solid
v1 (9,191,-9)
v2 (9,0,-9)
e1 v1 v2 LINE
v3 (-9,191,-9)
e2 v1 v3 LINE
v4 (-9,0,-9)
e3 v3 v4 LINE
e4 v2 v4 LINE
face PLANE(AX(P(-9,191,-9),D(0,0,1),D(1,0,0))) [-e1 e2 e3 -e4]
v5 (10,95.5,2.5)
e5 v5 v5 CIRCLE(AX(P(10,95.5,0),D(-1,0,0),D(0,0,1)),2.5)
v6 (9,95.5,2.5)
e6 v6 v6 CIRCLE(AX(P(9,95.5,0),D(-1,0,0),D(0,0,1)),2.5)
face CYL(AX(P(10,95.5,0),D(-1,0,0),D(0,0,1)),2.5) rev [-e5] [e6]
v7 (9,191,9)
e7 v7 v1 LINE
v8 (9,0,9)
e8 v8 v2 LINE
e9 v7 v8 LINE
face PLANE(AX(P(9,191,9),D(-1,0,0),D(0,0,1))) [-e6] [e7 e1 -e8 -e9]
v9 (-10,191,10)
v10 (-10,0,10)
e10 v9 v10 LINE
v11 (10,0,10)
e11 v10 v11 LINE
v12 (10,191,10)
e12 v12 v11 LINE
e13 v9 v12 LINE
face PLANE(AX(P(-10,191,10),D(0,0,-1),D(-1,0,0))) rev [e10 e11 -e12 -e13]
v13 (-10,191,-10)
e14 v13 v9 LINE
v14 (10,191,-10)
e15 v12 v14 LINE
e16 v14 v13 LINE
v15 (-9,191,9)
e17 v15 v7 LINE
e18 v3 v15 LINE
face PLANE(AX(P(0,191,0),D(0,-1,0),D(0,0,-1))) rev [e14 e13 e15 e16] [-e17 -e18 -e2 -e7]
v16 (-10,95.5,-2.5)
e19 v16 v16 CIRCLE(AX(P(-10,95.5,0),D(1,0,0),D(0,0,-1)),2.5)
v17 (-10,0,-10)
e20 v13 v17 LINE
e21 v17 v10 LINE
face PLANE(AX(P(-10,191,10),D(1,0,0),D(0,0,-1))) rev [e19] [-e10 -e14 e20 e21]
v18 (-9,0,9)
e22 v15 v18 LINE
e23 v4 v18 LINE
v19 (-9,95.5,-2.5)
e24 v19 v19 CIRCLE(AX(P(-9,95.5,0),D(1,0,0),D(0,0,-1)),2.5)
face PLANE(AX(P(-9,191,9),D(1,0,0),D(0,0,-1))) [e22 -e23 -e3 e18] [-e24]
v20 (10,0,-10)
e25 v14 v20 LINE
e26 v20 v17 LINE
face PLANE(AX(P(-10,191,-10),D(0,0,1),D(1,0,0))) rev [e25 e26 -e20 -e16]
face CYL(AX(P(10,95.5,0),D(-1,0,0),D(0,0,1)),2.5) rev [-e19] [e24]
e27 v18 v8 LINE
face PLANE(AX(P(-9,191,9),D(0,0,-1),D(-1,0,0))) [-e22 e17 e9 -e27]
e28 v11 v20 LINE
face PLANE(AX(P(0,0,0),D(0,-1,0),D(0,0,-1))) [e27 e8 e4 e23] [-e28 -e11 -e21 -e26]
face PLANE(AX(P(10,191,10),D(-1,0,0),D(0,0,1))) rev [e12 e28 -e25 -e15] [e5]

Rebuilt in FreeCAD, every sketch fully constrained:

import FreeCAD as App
import Part
import Sketcher

V = App.Vector

doc = App.newDocument("Part")
body = doc.addObject("PartDesign::Body", "Body")

sketch1 = doc.addObject("Sketcher::SketchObject", "Sketch")
body.addObject(sketch1)
sketch1.AttachmentSupport = (doc.XZ_Plane, [""])
sketch1.MapMode = "FlatFace"
sketch1.addGeometry([
    Part.LineSegment(V(-10, -10, 0), V(-10, 10, 0)),
    Part.LineSegment(V(-10, 10, 0), V(10, 10, 0)),
    Part.LineSegment(V(10, 10, 0), V(10, -10, 0)),
    Part.LineSegment(V(10, -10, 0), V(-10, -10, 0)),
    Part.LineSegment(V(9, 9, 0), V(-9, 9, 0)),
    Part.LineSegment(V(-9, 9, 0), V(-9, -9, 0)),
    Part.LineSegment(V(-9, -9, 0), V(9, -9, 0)),
    Part.LineSegment(V(9, -9, 0), V(9, 9, 0)),
], False)
sketch1.addConstraint([
    Sketcher.Constraint("Coincident", 0, 2, 1, 1),
    Sketcher.Constraint("Coincident", 1, 2, 2, 1),
    Sketcher.Constraint("Coincident", 2, 2, 3, 1),
    Sketcher.Constraint("Coincident", 3, 2, 0, 1),
    Sketcher.Constraint("Coincident", 4, 2, 5, 1),
    Sketcher.Constraint("Coincident", 5, 2, 6, 1),
    Sketcher.Constraint("Coincident", 6, 2, 7, 1),
    Sketcher.Constraint("Coincident", 7, 2, 4, 1),
    Sketcher.Constraint("Vertical", 0),
    Sketcher.Constraint("Horizontal", 1),
    Sketcher.Constraint("Vertical", 2),
    Sketcher.Constraint("Horizontal", 3),
    Sketcher.Constraint("Horizontal", 4),
    Sketcher.Constraint("Vertical", 5),
    Sketcher.Constraint("Horizontal", 6),
    Sketcher.Constraint("Vertical", 7),
    Sketcher.Constraint("Symmetric", 0, 2, 2, 2, -1, 1),
    Sketcher.Constraint("Symmetric", 4, 2, 6, 2, -1, 1),
    Sketcher.Constraint("Equal", 3, 0),
    Sketcher.Constraint("Equal", 6, 5),
    Sketcher.Constraint("DistanceX", 1, 1, 1, 2, 20.0),
    Sketcher.Constraint("DistanceX", 4, 2, 4, 1, 18.0),
])
pad1 = doc.addObject("PartDesign::Pad", "Pad")
body.addObject(pad1)
pad1.Profile = sketch1
pad1.Length = 191
pad1.Reversed = True

sketch2 = doc.addObject("Sketcher::SketchObject", "Sketch001")
body.addObject(sketch2)
sketch2.AttachmentSupport = (doc.YZ_Plane, [""])
sketch2.MapMode = "FlatFace"
sketch2.AttachmentOffset = App.Placement(V(0, 0, -10), App.Rotation())
sketch2.addGeometry(Part.Circle(V(95.5, 0, 0), V(0, 0, 1), 2.5), False)
sketch2.addConstraint([
    Sketcher.Constraint("PointOnObject", 0, 3, -1),
    Sketcher.Constraint("Diameter", 0, 5.0),
    Sketcher.Constraint("DistanceX", -1, 1, 0, 3, 95.5),
])
pocket1 = doc.addObject("PartDesign::Pocket", "Pocket")
body.addObject(pocket1)
pocket1.Profile = sketch2
pocket1.Type = "ThroughAll"
pocket1.Midplane = True

doc.recompute()
